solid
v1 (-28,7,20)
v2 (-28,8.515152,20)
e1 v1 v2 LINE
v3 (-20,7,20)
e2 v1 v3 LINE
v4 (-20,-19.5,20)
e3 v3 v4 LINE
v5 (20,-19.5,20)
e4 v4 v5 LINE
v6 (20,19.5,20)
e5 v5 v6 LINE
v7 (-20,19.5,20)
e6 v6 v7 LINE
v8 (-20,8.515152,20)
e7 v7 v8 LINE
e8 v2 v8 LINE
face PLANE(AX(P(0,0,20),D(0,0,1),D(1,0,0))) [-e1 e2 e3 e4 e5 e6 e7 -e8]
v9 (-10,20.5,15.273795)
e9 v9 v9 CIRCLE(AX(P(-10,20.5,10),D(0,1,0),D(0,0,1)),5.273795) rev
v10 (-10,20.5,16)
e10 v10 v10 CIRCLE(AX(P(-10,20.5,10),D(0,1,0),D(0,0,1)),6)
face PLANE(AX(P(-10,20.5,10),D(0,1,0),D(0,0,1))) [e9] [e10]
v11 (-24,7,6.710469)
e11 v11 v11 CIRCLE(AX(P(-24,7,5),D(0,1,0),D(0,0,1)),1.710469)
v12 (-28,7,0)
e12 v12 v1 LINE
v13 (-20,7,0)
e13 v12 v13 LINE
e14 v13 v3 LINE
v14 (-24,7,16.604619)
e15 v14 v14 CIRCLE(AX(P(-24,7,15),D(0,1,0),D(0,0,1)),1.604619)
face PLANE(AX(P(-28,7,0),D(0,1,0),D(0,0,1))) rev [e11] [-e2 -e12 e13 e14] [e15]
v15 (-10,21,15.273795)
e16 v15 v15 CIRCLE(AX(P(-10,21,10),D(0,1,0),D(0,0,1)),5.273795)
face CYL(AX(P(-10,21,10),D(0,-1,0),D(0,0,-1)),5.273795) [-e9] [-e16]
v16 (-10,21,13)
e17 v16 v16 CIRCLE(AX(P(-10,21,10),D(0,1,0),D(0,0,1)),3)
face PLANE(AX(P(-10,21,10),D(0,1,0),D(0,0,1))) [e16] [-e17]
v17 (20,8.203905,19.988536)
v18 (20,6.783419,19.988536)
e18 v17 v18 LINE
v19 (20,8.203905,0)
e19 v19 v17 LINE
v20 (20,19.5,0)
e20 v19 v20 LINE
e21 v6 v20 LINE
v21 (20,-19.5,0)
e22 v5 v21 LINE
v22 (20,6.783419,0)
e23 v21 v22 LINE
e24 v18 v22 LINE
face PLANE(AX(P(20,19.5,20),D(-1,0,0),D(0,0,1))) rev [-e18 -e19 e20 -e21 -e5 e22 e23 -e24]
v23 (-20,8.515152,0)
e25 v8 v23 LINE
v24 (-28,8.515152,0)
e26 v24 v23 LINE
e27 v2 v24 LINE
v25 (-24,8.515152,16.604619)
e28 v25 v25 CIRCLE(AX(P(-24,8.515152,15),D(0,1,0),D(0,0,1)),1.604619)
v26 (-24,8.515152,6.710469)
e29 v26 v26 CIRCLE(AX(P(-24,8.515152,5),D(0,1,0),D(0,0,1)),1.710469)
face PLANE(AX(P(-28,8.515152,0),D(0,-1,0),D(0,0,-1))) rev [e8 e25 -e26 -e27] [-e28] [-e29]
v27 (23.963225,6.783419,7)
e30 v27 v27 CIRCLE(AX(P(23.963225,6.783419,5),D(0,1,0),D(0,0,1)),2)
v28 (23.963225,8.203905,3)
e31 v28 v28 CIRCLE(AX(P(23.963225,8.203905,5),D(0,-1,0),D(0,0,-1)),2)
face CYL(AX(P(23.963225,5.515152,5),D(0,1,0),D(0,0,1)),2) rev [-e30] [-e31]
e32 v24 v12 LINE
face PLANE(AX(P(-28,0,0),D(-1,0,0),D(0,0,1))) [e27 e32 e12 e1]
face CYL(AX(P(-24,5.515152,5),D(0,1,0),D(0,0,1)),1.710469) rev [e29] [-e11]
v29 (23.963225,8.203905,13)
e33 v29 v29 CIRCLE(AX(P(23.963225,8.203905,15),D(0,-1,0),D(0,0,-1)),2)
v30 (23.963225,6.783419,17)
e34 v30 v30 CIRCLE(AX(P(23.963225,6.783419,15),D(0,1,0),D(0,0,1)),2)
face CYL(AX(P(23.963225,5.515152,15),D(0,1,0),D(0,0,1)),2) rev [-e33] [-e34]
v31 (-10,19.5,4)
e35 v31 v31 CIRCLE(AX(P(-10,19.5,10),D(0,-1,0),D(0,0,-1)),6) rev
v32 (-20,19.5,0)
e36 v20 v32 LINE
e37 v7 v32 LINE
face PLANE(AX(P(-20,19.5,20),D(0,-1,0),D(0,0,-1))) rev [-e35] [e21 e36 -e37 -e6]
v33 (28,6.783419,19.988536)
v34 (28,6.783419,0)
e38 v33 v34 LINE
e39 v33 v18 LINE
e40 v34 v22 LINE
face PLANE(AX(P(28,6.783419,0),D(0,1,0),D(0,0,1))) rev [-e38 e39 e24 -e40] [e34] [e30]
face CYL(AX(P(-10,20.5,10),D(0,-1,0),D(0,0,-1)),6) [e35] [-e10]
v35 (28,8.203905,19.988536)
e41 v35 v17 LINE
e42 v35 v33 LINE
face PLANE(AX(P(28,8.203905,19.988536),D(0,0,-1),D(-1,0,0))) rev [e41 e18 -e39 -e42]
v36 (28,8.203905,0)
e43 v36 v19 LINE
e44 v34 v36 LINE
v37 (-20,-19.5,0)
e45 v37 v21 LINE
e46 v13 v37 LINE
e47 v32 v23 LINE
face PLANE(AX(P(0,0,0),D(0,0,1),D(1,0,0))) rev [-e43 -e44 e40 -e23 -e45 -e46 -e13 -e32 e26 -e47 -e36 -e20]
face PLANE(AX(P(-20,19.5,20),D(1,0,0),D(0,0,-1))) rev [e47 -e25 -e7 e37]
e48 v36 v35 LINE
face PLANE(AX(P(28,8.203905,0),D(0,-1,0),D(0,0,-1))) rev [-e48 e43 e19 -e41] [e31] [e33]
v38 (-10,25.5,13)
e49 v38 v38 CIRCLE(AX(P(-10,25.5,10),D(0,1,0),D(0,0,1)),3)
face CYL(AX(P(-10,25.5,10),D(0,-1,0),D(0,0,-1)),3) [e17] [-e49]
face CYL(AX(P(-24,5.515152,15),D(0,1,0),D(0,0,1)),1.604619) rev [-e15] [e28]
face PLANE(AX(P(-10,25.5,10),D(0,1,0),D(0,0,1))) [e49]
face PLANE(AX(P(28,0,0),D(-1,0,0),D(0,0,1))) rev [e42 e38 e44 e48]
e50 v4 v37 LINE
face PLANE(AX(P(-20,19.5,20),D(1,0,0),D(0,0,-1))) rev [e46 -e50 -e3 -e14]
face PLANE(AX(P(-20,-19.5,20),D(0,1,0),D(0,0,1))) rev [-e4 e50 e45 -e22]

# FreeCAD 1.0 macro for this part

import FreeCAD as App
import Part
import Sketcher

V = App.Vector


def add_polygon(sketch, points):
    """Adds a closed chain of lines whose ends are joined by coincident constraints."""
    first, n = sketch.GeometryCount, len(points)
    for a, b in zip(points, points[1:] + points[:1]):
        sketch.addGeometry(Part.LineSegment(App.Vector(*a, 0), App.Vector(*b, 0)), False)
    for i in range(n):
        sketch.addConstraint(Sketcher.Constraint("Coincident", first + i, 2, first + (i + 1) % n, 1))

doc = App.newDocument("Part")
body = doc.addObject("PartDesign::Body", "Body")

sketch1 = body.newObject("Sketcher::SketchObject", "Sketch")
sketch1.AttachmentSupport = (doc.getObject("XY_Plane"), [""])
sketch1.MapMode = "FlatFace"
add_polygon(sketch1, [(-20, 19.5), (-20, -19.5), (20, -19.5), (20, 19.5)])
sketch1.addConstraint(Sketcher.Constraint("Vertical", 0))
sketch1.addConstraint(Sketcher.Constraint("Horizontal", 1))
sketch1.addConstraint(Sketcher.Constraint("Vertical", 2))
sketch1.addConstraint(Sketcher.Constraint("Horizontal", 3))
sketch1.addConstraint(Sketcher.Constraint("Symmetric", 0, 2, 2, 2, -1, 1))
sketch1.addConstraint(Sketcher.Constraint("DistanceX", 1, 1, 1, 2, 40.0))
sketch1.addConstraint(Sketcher.Constraint("DistanceY", 0, 2, 0, 1, 39.0))
pad1 = body.newObject("PartDesign::Pad", "Pad")
pad1.Profile = sketch1
pad1.Length = 20

sketch2 = body.newObject("Sketcher::SketchObject", "Sketch001")
sketch2.AttachmentSupport = (doc.getObject("XZ_Plane"), [""])
sketch2.MapMode = "FlatFace"
sketch2.AttachmentOffset = App.Placement(V(0, 0, -19.5), App.Rotation())
sketch2.addGeometry(Part.Circle(V(-10, 10, 0), V(0, 0, 1), 6), False)
sketch2.addConstraint(Sketcher.Constraint("Diameter", 0, 12.0))
sketch2.addConstraint(Sketcher.Constraint("DistanceX", 0, 3, -1, 1, 10.0))
sketch2.addConstraint(Sketcher.Constraint("DistanceY", -1, 1, 0, 3, 10.0))
pad2 = body.newObject("PartDesign::Pad", "Pad001")
pad2.Profile = sketch2
pad2.Length = 1
pad2.Reversed = True

sketch3 = body.newObject("Sketcher::SketchObject", "Sketch002")
sketch3.AttachmentSupport = (doc.getObject("XZ_Plane"), [""])
sketch3.MapMode = "FlatFace"
sketch3.addGeometry(Part.Circle(V(-10, 10, 0), V(0, 0, 1), 3), False)
sketch3.addConstraint(Sketcher.Constraint("Diameter", 0, 6.0))
sketch3.addConstraint(Sketcher.Constraint("DistanceX", 0, 3, -1, 1, 10.0))
sketch3.addConstraint(Sketcher.Constraint("DistanceY", -1, 1, 0, 3, 10.0))
pad3 = body.newObject("PartDesign::Pad", "Pad002")
pad3.Profile = sketch3
pad3.Length = 25.5
pad3.Reversed = True

sketch4 = body.newObject("Sketcher::SketchObject", "Sketch003")
sketch4.AttachmentSupport = (doc.getObject("YZ_Plane"), [""])
sketch4.MapMode = "FlatFace"
sketch4.AttachmentOffset = App.Placement(V(0, 0, -20), App.Rotation())
add_polygon(sketch4, [(8.515152, 0), (7, 0), (7, 20), (8.515152, 20)])
sketch4.addConstraint(Sketcher.Constraint("Horizontal", 0))
sketch4.addConstraint(Sketcher.Constraint("Vertical", 1))
sketch4.addConstraint(Sketcher.Constraint("Horizontal", 2))
sketch4.addConstraint(Sketcher.Constraint("Vertical", 3))
sketch4.addConstraint(Sketcher.Constraint("PointOnObject", 0, 2, -1))
sketch4.addConstraint(Sketcher.Constraint("DistanceY", 1, 1, 1, 2, 20.0))
sketch4.addConstraint(Sketcher.Constraint("DistanceX", -1, 1, 0, 2, 7.0))
sketch4.addConstraint(Sketcher.Constraint("DistanceX", 0, 2, 0, 1, 1.515152))
pad4 = body.newObject("PartDesign::Pad", "Pad003")
pad4.Profile = sketch4
pad4.Length = 8
pad4.Reversed = True

sketch5 = body.newObject("Sketcher::SketchObject", "Sketch004")
sketch5.AttachmentSupport = (doc.getObject("YZ_Plane"), [""])
sketch5.MapMode = "FlatFace"
sketch5.AttachmentOffset = App.Placement(V(0, 0, 20), App.Rotation())
add_polygon(sketch5, [(8.203905, 19.988536), (6.783419, 19.988536), (6.783419, 0), (8.203905, 0)])
sketch5.addConstraint(Sketcher.Constraint("Horizontal", 0))
sketch5.addConstraint(Sketcher.Constraint("Vertical", 1))
sketch5.addConstraint(Sketcher.Constraint("Horizontal", 2))
sketch5.addConstraint(Sketcher.Constraint("Vertical", 3))
sketch5.addConstraint(Sketcher.Constraint("PointOnObject", 1, 2, -1))
sketch5.addConstraint(Sketcher.Constraint("DistanceX", 0, 2, 0, 1, 1.420486))
sketch5.addConstraint(Sketcher.Constraint("DistanceY", 1, 2, 1, 1, 19.988536))
sketch5.addConstraint(Sketcher.Constraint("DistanceX", -1, 1, 0, 2, 6.783419))
pad5 = body.newObject("PartDesign::Pad", "Pad004")
pad5.Profile = sketch5
pad5.Length = 8

sketch6 = body.newObject("Sketcher::SketchObject", "Sketch005")
sketch6.AttachmentSupport = (doc.getObject("XZ_Plane"), [""])
sketch6.MapMode = "FlatFace"
sketch6.AttachmentOffset = App.Placement(V(0, 0, -8.515152), App.Rotation())
sketch6.addGeometry(Part.Circle(V(-24, 5, 0), V(0, 0, 1), 1.710469), False)
sketch6.addGeometry(Part.Circle(V(-24, 15, 0), V(0, 0, 1), 1.604619), False)
sketch6.addGeometry(Part.Circle(V(23.963225, 5, 0), V(0, 0, 1), 2), False)
sketch6.addGeometry(Part.Circle(V(23.963225, 15, 0), V(0, 0, 1), 2), False)
sketch6.addConstraint(Sketcher.Constraint("Equal", 2, 3))
sketch6.addConstraint(Sketcher.Constraint("Horizontal", 0, 3, 2, 3))
sketch6.addConstraint(Sketcher.Constraint("Horizontal", 1, 3, 3, 3))
sketch6.addConstraint(Sketcher.Constraint("Vertical", 0, 3, 1, 3))
sketch6.addConstraint(Sketcher.Constraint("Vertical", 2, 3, 3, 3))
sketch6.addConstraint(Sketcher.Constraint("Diameter", 2, 4.0))
sketch6.addConstraint(Sketcher.Constraint("DistanceX", 0, 3, -1, 1, 24.0))
sketch6.addConstraint(Sketcher.Constraint("DistanceY", -1, 1, 0, 3, 5.0))
sketch6.addConstraint(Sketcher.Constraint("DistanceY", -1, 1, 1, 3, 15.0))
sketch6.addConstraint(Sketcher.Constraint("Diameter", 0, 3.420937))
sketch6.addConstraint(Sketcher.Constraint("Diameter", 1, 3.209238))
sketch6.addConstraint(Sketcher.Constraint("DistanceX", -1, 1, 2, 3, 23.963225))
pocket1 = body.newObject("PartDesign::Pocket", "Pocket")
pocket1.Profile = sketch6
pocket1.Length = 3
pocket1.Reversed = True

sketch7 = body.newObject("Sketcher::SketchObject", "Sketch006")
sketch7.AttachmentSupport = (doc.getObject("XZ_Plane"), [""])
sketch7.MapMode = "FlatFace"
sketch7.AttachmentOffset = App.Placement(V(0, 0, -19.5), App.Rotation())
sketch7.addGeometry(Part.Circle(V(-10, 10, 0), V(0, 0, 1), 5.273795), False)
sketch7.addConstraint(Sketcher.Constraint("DistanceX", 0, 3, -1, 1, 10.0))
sketch7.addConstraint(Sketcher.Constraint("DistanceY", -1, 1, 0, 3, 10.0))
sketch7.addConstraint(Sketcher.Constraint("Diameter", 0, 10.54759))
pad6 = body.newObject("PartDesign::Pad", "Pad005")
pad6.Profile = sketch7
pad6.Length = 1.5
pad6.Reversed = True

doc.recompute()
